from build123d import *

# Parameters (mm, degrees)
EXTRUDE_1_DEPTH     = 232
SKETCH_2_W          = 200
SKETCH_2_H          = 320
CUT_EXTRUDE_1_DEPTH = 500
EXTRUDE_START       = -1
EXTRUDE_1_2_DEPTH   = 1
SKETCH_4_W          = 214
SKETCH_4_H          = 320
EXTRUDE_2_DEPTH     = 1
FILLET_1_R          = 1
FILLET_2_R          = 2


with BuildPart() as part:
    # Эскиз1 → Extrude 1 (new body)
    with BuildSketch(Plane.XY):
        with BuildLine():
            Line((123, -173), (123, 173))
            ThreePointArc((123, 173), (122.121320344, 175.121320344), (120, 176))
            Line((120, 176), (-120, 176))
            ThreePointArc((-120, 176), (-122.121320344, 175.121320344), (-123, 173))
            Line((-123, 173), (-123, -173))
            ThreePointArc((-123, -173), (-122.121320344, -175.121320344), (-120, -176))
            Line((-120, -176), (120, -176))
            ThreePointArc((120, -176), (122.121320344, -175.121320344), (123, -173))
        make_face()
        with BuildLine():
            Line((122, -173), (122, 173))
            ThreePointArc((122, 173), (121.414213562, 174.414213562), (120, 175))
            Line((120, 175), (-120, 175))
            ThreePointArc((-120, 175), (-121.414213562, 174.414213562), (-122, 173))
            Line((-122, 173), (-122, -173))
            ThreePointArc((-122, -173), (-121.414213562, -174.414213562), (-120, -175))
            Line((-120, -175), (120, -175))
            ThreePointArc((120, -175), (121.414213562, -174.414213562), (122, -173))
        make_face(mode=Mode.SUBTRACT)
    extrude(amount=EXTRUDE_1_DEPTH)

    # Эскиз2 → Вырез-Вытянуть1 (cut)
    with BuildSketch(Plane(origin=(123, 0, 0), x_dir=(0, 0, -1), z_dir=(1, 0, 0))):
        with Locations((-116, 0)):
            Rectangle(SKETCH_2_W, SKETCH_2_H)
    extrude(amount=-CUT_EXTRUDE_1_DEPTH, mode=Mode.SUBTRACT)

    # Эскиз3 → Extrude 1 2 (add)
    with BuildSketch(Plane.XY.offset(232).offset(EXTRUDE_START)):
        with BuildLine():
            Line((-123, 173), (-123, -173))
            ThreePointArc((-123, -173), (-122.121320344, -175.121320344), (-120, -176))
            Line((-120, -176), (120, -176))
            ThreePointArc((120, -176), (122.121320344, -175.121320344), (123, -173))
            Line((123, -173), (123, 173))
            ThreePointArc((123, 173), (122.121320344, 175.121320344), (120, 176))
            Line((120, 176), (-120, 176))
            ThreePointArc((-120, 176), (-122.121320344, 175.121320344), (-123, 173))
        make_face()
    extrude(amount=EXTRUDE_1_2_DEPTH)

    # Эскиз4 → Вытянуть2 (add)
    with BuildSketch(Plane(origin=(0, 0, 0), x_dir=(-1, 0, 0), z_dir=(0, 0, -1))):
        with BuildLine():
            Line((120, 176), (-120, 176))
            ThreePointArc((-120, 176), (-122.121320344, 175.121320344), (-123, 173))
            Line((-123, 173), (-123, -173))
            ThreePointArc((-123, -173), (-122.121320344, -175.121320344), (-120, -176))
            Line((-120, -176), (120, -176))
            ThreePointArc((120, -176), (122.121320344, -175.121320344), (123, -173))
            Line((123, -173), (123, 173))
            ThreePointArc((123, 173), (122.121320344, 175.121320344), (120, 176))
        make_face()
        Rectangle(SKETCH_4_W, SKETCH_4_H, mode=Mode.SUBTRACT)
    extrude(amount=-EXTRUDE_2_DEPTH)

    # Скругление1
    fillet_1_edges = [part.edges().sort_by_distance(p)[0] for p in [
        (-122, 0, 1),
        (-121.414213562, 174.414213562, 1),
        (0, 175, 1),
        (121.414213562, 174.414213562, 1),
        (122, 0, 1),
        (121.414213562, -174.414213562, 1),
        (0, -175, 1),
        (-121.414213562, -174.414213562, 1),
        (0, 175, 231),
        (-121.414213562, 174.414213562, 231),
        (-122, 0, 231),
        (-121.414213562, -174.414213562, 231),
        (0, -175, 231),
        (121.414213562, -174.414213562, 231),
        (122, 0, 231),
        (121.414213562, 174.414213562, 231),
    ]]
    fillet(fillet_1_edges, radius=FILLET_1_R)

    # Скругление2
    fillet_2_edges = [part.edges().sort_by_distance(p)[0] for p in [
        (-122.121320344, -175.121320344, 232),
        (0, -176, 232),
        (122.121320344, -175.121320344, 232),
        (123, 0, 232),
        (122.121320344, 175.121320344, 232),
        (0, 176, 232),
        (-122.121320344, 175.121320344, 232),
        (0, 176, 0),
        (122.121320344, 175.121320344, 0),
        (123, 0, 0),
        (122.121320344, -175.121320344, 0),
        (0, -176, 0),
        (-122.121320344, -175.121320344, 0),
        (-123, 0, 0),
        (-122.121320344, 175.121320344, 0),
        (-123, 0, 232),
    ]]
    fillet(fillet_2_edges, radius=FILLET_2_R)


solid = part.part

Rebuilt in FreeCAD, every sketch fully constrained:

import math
import FreeCAD as App
import Part
import Sketcher

V = App.Vector


def edges_at(feature, points):
    """Names of the edges that pass closest to the given points."""
    edges = feature.Shape.Edges
    near = lambda p: min(range(len(edges)), key=lambda i: edges[i].distToShape(Part.Vertex(*p))[0])
    return sorted({f"Edge{near(p) + 1}" for p in points})


def add_polygon(sketch, points):
    """Adds a closed chain of lines whose ends are joined by coincident constraints."""
    first, n = sketch.GeometryCount, len(points)
    for a, b in zip(points, points[1:] + points[:1]):
        sketch.addGeometry(Part.LineSegment(App.Vector(*a, 0), App.Vector(*b, 0)), False)
    for i in range(n):
        sketch.addConstraint(Sketcher.Constraint("Coincident", first + i, 2, first + (i + 1) % n, 1))

doc = App.newDocument("Part")
params = doc.addObject("Spreadsheet::Sheet", "Params")
for row, (alias, value) in enumerate([
    ("sketch1_radius", "3 mm"),
    ("sketch1_radius2", "2 mm"),
    ("sketch1_width", "240 mm"),
    ("sketch1_height", "346 mm"),
    ("pad1_length", "232 mm"),
    ("sketch2_width", "320 mm"),
    ("sketch2_height", "200 mm"),
    ("pocket1_length", "500 mm"),
    ("sketch3_radius", "3 mm"),
    ("sketch3_width", "240 mm"),
    ("sketch3_height", "346 mm"),
    ("pad2_length", "1 mm"),
    ("sketch4_radius", "3 mm"),
    ("sketch4_width", "240 mm"),
    ("sketch4_width2", "214 mm"),
    ("sketch4_height", "346 mm"),
    ("sketch4_height2", "320 mm"),
    ("pad3_length", "1 mm"),
    ("fillet_radius", "1 mm"),
    ("fillet2_radius", "2 mm"),
], start=1):
    params.set(f"A{row}", alias)
    params.set(f"B{row}", "=" + value)
    params.setAlias(f"B{row}", alias)

body = doc.addObject("PartDesign::Body", "Body")

# Sketch on XY plane
sketch1 = body.newObject("Sketcher::SketchObject", "Sketch")
sketch1.AttachmentSupport = (doc.getObject("XY_Plane"), [""])
sketch1.MapMode = "FlatFace"
sketch1.addGeometry([
    Part.LineSegment(V(123, -173, 0), V(123, 173, 0)),  # 0
    Part.ArcOfCircle(Part.Circle(V(120, 173, 0), V(0, 0, 1), 3), math.radians(0), math.radians(90)),  # 1
    Part.LineSegment(V(120, 176, 0), V(-120, 176, 0)),  # 2
    Part.ArcOfCircle(Part.Circle(V(-120, 173, 0), V(0, 0, 1), 3), math.radians(90), math.radians(180)),  # 3
    Part.LineSegment(V(-123, 173, 0), V(-123, -173, 0)),  # 4
    Part.ArcOfCircle(Part.Circle(V(-120, -173, 0), V(0, 0, 1), 3), math.radians(180), math.radians(270)),  # 5
    Part.LineSegment(V(-120, -176, 0), V(120, -176, 0)),  # 6
    Part.ArcOfCircle(Part.Circle(V(120, -173, 0), V(0, 0, 1), 3), math.radians(-90), math.radians(0)),  # 7
    Part.LineSegment(V(122, 173, 0), V(122, -173, 0)),  # 8
    Part.ArcOfCircle(Part.Circle(V(120, -173, 0), V(0, 0, 1), 2), math.radians(-90), math.radians(0)),  # 9
    Part.LineSegment(V(120, -175, 0), V(-120, -175, 0)),  # 10
    Part.ArcOfCircle(Part.Circle(V(-120, -173, 0), V(0, 0, 1), 2), math.radians(-180), math.radians(-90)),  # 11
    Part.LineSegment(V(-122, -173, 0), V(-122, 173, 0)),  # 12
    Part.ArcOfCircle(Part.Circle(V(-120, 173, 0), V(0, 0, 1), 2), math.radians(90), math.radians(180)),  # 13
    Part.LineSegment(V(-120, 175, 0), V(120, 175, 0)),  # 14
    Part.ArcOfCircle(Part.Circle(V(120, 173, 0), V(0, 0, 1), 2), math.radians(0), math.radians(90)),  # 15
], False)
sketch1.addConstraint([
    Sketcher.Constraint("Tangent", 0, 2, 1, 1),
    Sketcher.Constraint("Tangent", 1, 2, 2, 1),
    Sketcher.Constraint("Tangent", 2, 2, 3, 1),
    Sketcher.Constraint("Tangent", 3, 2, 4, 1),
    Sketcher.Constraint("Tangent", 4, 2, 5, 1),
    Sketcher.Constraint("Tangent", 5, 2, 6, 1),
    Sketcher.Constraint("Tangent", 6, 2, 7, 1),
    Sketcher.Constraint("Tangent", 7, 2, 0, 1),
    Sketcher.Constraint("Tangent", 8, 2, 9, 2),
    Sketcher.Constraint("Tangent", 9, 1, 10, 1),
    Sketcher.Constraint("Tangent", 10, 2, 11, 2),
    Sketcher.Constraint("Tangent", 11, 1, 12, 1),
    Sketcher.Constraint("Tangent", 12, 2, 13, 2),
    Sketcher.Constraint("Tangent", 13, 1, 14, 1),
    Sketcher.Constraint("Tangent", 14, 2, 15, 2),
    Sketcher.Constraint("Tangent", 15, 1, 8, 1),
    Sketcher.Constraint("Vertical", 0),
    Sketcher.Constraint("Horizontal", 2),
    Sketcher.Constraint("Vertical", 4),
    Sketcher.Constraint("Horizontal", 6),
    Sketcher.Constraint("Vertical", 8),
    Sketcher.Constraint("Horizontal", 10),
    Sketcher.Constraint("Vertical", 12),
    Sketcher.Constraint("Horizontal", 14),
    Sketcher.Constraint("Coincident", 9, 3, 7, 3),
    Sketcher.Constraint("Coincident", 11, 3, 5, 3),
    Sketcher.Constraint("Coincident", 13, 3, 3, 3),
    Sketcher.Constraint("Equal", 1, 3),
    Sketcher.Constraint("Equal", 3, 5),
    Sketcher.Constraint("Equal", 5, 7),
    Sketcher.Constraint("Equal", 13, 15),
    Sketcher.Constraint("Symmetric", 1, 3, 5, 3, -1, 1),
    Sketcher.Constraint("Radius", 1, 3.0),
    Sketcher.Constraint("Radius", 9, 2.0),
    Sketcher.Constraint("DistanceX", 2, 2, 2, 1, 240.0),
    Sketcher.Constraint("DistanceY", 0, 1, 0, 2, 346.0),
])
sketch1.setExpression("Constraints[32]", "Params.sketch1_radius")
sketch1.setExpression("Constraints[33]", "Params.sketch1_radius2")
sketch1.setExpression("Constraints[34]", "Params.sketch1_width")
sketch1.setExpression("Constraints[35]", "Params.sketch1_height")
pad1 = body.newObject("PartDesign::Pad", "Pad")
pad1.Profile = sketch1
pad1.setExpression("Length", "Params.pad1_length")

# Sketch on YZ plane
sketch2 = body.newObject("Sketcher::SketchObject", "Sketch001")
sketch2.AttachmentSupport = (doc.getObject("YZ_Plane"), [""])
sketch2.MapMode = "FlatFace"
sketch2.AttachmentOffset = App.Placement(V(0, 0, 123), App.Rotation())
add_polygon(sketch2, [(160, 216), (-160, 216), (-160, 16), (160, 16)])  # lines 0-3
sketch2.addConstraint([
    Sketcher.Constraint("Horizontal", 0),
    Sketcher.Constraint("Vertical", 1),
    Sketcher.Constraint("Horizontal", 2),
    Sketcher.Constraint("Vertical", 3),
    Sketcher.Constraint("DistanceX", 0, 2, 0, 1, 320.0),
    Sketcher.Constraint("DistanceY", 1, 2, 1, 1, 200.0),
    Sketcher.Constraint("DistanceX", 0, 2, -1, 1, 160.0),
    Sketcher.Constraint("DistanceY", -1, 1, 0, 2, 216.0),
])
sketch2.setExpression("Constraints[8]", "Params.sketch2_width")
sketch2.setExpression("Constraints[9]", "Params.sketch2_height")
pocket1 = body.newObject("PartDesign::Pocket", "Pocket")
pocket1.Profile = sketch2
pocket1.setExpression("Length", "Params.pocket1_length")

# Sketch on XY plane
sketch3 = body.newObject("Sketcher::SketchObject", "Sketch002")
sketch3.AttachmentSupport = (doc.getObject("XY_Plane"), [""])
sketch3.MapMode = "FlatFace"
sketch3.AttachmentOffset = App.Placement(V(0, 0, 231), App.Rotation())
sketch3.addGeometry([
    Part.LineSegment(V(-123, 173, 0), V(-123, -173, 0)),  # 0
    Part.ArcOfCircle(Part.Circle(V(-120, -173, 0), V(0, 0, 1), 3), math.radians(180), math.radians(270)),  # 1
    Part.LineSegment(V(-120, -176, 0), V(120, -176, 0)),  # 2
    Part.ArcOfCircle(Part.Circle(V(120, -173, 0), V(0, 0, 1), 3), math.radians(-90), math.radians(0)),  # 3
    Part.LineSegment(V(123, -173, 0), V(123, 173, 0)),  # 4
    Part.ArcOfCircle(Part.Circle(V(120, 173, 0), V(0, 0, 1), 3), math.radians(0), math.radians(90)),  # 5
    Part.LineSegment(V(120, 176, 0), V(-120, 176, 0)),  # 6
    Part.ArcOfCircle(Part.Circle(V(-120, 173, 0), V(0, 0, 1), 3), math.radians(90), math.radians(180)),  # 7
], False)
sketch3.addConstraint([
    Sketcher.Constraint("Tangent", 0, 2, 1, 1),
    Sketcher.Constraint("Tangent", 1, 2, 2, 1),
    Sketcher.Constraint("Tangent", 2, 2, 3, 1),
    Sketcher.Constraint("Tangent", 3, 2, 4, 1),
    Sketcher.Constraint("Tangent", 4, 2, 5, 1),
    Sketcher.Constraint("Tangent", 5, 2, 6, 1),
    Sketcher.Constraint("Tangent", 6, 2, 7, 1),
    Sketcher.Constraint("Tangent", 7, 2, 0, 1),
    Sketcher.Constraint("Vertical", 0),
    Sketcher.Constraint("Horizontal", 2),
    Sketcher.Constraint("Vertical", 4),
    Sketcher.Constraint("Horizontal", 6),
    Sketcher.Constraint("Equal", 1, 3),
    Sketcher.Constraint("Equal", 3, 5),
    Sketcher.Constraint("Equal", 5, 7),
    Sketcher.Constraint("Symmetric", 1, 3, 5, 3, -1, 1),
    Sketcher.Constraint("Radius", 1, 3.0),
    Sketcher.Constraint("DistanceX", 2, 1, 2, 2, 240.0),
    Sketcher.Constraint("DistanceY", 0, 2, 0, 1, 346.0),
])
sketch3.setExpression("Constraints[16]", "Params.sketch3_radius")
sketch3.setExpression("Constraints[17]", "Params.sketch3_width")
sketch3.setExpression("Constraints[18]", "Params.sketch3_height")
pad2 = body.newObject("PartDesign::Pad", "Pad001")
pad2.Profile = sketch3
pad2.setExpression("Length", "Params.pad2_length")

# Sketch on XY plane
sketch4 = body.newObject("Sketcher::SketchObject", "Sketch003")
sketch4.AttachmentSupport = (doc.getObject("XY_Plane"), [""])
sketch4.MapMode = "FlatFace"
sketch4.addGeometry(Part.LineSegment(V(-120, 176, 0), V(120, 176, 0)), False)  # 0
sketch4.addGeometry(Part.ArcOfCircle(Part.Circle(V(120, 173, 0), V(0, 0, 1), 3), math.radians(0), math.radians(90)), False)  # 1
sketch4.addGeometry(Part.LineSegment(V(123, 173, 0), V(123, -173, 0)), False)  # 2
sketch4.addGeometry(Part.ArcOfCircle(Part.Circle(V(120, -173, 0), V(0, 0, 1), 3), math.radians(-90), math.radians(0)), False)  # 3
sketch4.addGeometry(Part.LineSegment(V(120, -176, 0), V(-120, -176, 0)), False)  # 4
sketch4.addGeometry(Part.ArcOfCircle(Part.Circle(V(-120, -173, 0), V(0, 0, 1), 3), math.radians(180), math.radians(270)), False)  # 5
sketch4.addGeometry(Part.LineSegment(V(-123, -173, 0), V(-123, 173, 0)), False)  # 6
sketch4.addGeometry(Part.ArcOfCircle(Part.Circle(V(-120, 173, 0), V(0, 0, 1), 3), math.radians(90), math.radians(180)), False)  # 7
add_polygon(sketch4, [(-107, -160), (107, -160), (107, 160), (-107, 160)])  # lines 8-11
sketch4.addConstraint([
    Sketcher.Constraint("Tangent", 0, 2, 1, 2),
    Sketcher.Constraint("Tangent", 1, 1, 2, 1),
    Sketcher.Constraint("Tangent", 2, 2, 3, 2),
    Sketcher.Constraint("Tangent", 3, 1, 4, 1),
    Sketcher.Constraint("Tangent", 4, 2, 5, 2),
    Sketcher.Constraint("Tangent", 5, 1, 6, 1),
    Sketcher.Constraint("Tangent", 6, 2, 7, 2),
    Sketcher.Constraint("Tangent", 7, 1, 0, 1),
    Sketcher.Constraint("Horizontal", 0),
    Sketcher.Constraint("Vertical", 2),
    Sketcher.Constraint("Horizontal", 4),
    Sketcher.Constraint("Vertical", 6),
    Sketcher.Constraint("Horizontal", 8),
    Sketcher.Constraint("Vertical", 9),
    Sketcher.Constraint("Horizontal", 10),
    Sketcher.Constraint("Vertical", 11),
    Sketcher.Constraint("Equal", 1, 3),
    Sketcher.Constraint("Equal", 3, 5),
    Sketcher.Constraint("Equal", 5, 7),
    Sketcher.Constraint("Symmetric", 1, 3, 5, 3, -1, 1),
    Sketcher.Constraint("Symmetric", 8, 2, 10, 2, -1, 1),
    Sketcher.Constraint("Radius", 1, 3.0),
    Sketcher.Constraint("DistanceX", 0, 1, 0, 2, 240.0),
    Sketcher.Constraint("DistanceX", 8, 1, 8, 2, 214.0),
    Sketcher.Constraint("DistanceY", 2, 2, 2, 1, 346.0),
    Sketcher.Constraint("DistanceY", 9, 1, 9, 2, 320.0),
])
sketch4.setExpression("Constraints[25]", "Params.sketch4_radius")
sketch4.setExpression("Constraints[26]", "Params.sketch4_width")
sketch4.setExpression("Constraints[27]", "Params.sketch4_width2")
sketch4.setExpression("Constraints[28]", "Params.sketch4_height")
sketch4.setExpression("Constraints[29]", "Params.sketch4_height2")
pad3 = body.newObject("PartDesign::Pad", "Pad002")
pad3.Profile = sketch4
pad3.setExpression("Length", "Params.pad3_length")
doc.recompute()

fillet = body.newObject("PartDesign::Fillet", "Fillet")
fillet.Base = (pad3, edges_at(pad3, [
    (-122, 0, 1),
    (-121.414, 174.414, 1),
    (0, 175, 1),
    (121.414, 174.414, 1),
    (122, 0, 1),
    (121.414, -174.414, 1),
    (0, -175, 1),
    (-121.414, -174.414, 1),
    (0, 175, 231),
    (-121.414, 174.414, 231),
    (-122, 0, 231),
    (-121.414, -174.414, 231),
    (0, -175, 231),
    (121.414, -174.414, 231),
    (122, 0, 231),
    (121.414, 174.414, 231),
]))
fillet.setExpression("Radius", "Params.fillet_radius")
doc.recompute()

fillet2 = body.newObject("PartDesign::Fillet", "Fillet001")
fillet2.Base = (fillet, edges_at(fillet, [
    (-122.121, -175.121, 232),
    (0, -176, 232),
    (122.121, -175.121, 232),
    (123, 0, 232),
    (122.121, 175.121, 232),
    (0, 176, 232),
    (-122.121, 175.121, 232),
    (0, 176, 0),
    (122.121, 175.121, 0),
    (123, 0, 0),
    (122.121, -175.121, 0),
    (0, -176, 0),
    (-122.121, -175.121, 0),
    (-123, 0, 0),
    (-122.121, 175.121, 0),
    (-123, 0, 232),
]))
fillet2.setExpression("Radius", "Params.fillet2_radius")

doc.recompute()
